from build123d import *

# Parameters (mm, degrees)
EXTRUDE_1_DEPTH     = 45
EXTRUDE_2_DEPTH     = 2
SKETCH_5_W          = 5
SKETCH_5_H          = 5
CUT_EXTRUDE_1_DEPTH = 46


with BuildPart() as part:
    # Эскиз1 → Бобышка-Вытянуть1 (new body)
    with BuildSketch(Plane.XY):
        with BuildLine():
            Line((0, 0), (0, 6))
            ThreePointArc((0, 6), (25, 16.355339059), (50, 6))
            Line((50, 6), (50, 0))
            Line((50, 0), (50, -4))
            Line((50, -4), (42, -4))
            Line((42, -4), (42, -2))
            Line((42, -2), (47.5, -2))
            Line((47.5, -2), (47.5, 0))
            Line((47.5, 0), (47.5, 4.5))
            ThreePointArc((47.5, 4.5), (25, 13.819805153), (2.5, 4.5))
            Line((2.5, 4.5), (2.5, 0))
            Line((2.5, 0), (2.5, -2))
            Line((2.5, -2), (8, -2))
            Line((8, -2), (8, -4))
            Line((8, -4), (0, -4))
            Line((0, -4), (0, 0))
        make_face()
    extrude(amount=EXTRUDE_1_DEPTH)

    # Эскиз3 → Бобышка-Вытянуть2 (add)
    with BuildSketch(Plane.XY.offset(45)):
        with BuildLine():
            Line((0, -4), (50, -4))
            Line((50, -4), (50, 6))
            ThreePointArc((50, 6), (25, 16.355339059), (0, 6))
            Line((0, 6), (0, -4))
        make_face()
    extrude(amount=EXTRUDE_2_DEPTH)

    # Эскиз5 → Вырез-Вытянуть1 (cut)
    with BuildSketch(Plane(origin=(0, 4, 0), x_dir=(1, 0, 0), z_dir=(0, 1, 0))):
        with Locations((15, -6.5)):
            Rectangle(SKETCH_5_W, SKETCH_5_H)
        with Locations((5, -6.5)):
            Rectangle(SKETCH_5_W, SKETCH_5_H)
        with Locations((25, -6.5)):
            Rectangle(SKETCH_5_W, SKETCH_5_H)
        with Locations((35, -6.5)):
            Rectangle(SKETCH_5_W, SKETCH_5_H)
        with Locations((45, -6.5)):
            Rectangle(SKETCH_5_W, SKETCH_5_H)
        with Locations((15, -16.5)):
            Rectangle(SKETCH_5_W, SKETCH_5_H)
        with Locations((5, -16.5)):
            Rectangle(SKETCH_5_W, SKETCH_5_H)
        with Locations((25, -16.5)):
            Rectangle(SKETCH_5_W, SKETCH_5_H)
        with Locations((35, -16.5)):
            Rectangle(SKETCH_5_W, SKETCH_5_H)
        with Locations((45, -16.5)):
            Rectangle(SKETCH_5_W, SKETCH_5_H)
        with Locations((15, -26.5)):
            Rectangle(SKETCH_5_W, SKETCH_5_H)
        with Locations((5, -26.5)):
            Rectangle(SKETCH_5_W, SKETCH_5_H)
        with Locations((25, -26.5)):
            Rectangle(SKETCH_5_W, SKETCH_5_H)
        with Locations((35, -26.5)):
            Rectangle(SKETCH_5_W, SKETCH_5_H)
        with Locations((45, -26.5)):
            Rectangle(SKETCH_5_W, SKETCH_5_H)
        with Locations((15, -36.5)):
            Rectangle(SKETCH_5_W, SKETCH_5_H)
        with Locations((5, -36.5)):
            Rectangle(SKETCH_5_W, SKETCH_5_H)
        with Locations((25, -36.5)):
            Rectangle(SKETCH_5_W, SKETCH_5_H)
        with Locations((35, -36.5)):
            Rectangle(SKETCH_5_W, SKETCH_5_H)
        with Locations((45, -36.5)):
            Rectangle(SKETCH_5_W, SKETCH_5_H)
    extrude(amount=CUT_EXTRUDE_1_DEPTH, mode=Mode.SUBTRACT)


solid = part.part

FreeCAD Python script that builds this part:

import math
import FreeCAD as App
import Part
import Sketcher

doc = App.newDocument("Part")
body = doc.addObject("PartDesign::Body", "Body")

# Sketch on XY plane
sketch1 = doc.addObject("Sketcher::SketchObject", "Sketch")
body.addObject(sketch1)
sketch1.AttachmentSupport = (doc.XY_Plane, [""])
sketch1.MapMode = "FlatFace"
sketch1.addGeometry(Part.ArcOfCircle(Part.Circle(App.Vector(25, -19, 0), App.Vector(0, 0, 1), 35.355339), math.radians(45), math.radians(135)), False)
sketch1.addGeometry(Part.LineSegment(App.Vector(0, 6, 0), App.Vector(0, -4, 0)), False)
sketch1.addGeometry(Part.LineSegment(App.Vector(0, -4, 0), App.Vector(8, -4, 0)), False)
sketch1.addGeometry(Part.LineSegment(App.Vector(8, -4, 0), App.Vector(8, -2, 0)), False)
sketch1.addGeometry(Part.LineSegment(App.Vector(8, -2, 0), App.Vector(2.5, -2, 0)), False)
sketch1.addGeometry(Part.LineSegment(App.Vector(2.5, -2, 0), App.Vector(2.5, 4.5, 0)), False)
sketch1.addGeometry(Part.ArcOfCircle(Part.Circle(App.Vector(25, -18, 0), App.Vector(0, 0, 1), 31.819805), math.radians(45), math.radians(135)), False)
sketch1.addGeometry(Part.LineSegment(App.Vector(47.5, 4.5, 0), App.Vector(47.5, -2, 0)), False)
sketch1.addGeometry(Part.LineSegment(App.Vector(47.5, -2, 0), App.Vector(42, -2, 0)), False)
sketch1.addGeometry(Part.LineSegment(App.Vector(42, -2, 0), App.Vector(42, -4, 0)), False)
sketch1.addGeometry(Part.LineSegment(App.Vector(42, -4, 0), App.Vector(50, -4, 0)), False)
sketch1.addGeometry(Part.LineSegment(App.Vector(50, -4, 0), App.Vector(50, 6, 0)), False)
sketch1.addConstraint(Sketcher.Constraint("Coincident", 0, 2, 1, 1))
sketch1.addConstraint(Sketcher.Constraint("Coincident", 1, 2, 2, 1))
sketch1.addConstraint(Sketcher.Constraint("Coincident", 2, 2, 3, 1))
sketch1.addConstraint(Sketcher.Constraint("Coincident", 3, 2, 4, 1))
sketch1.addConstraint(Sketcher.Constraint("Coincident", 4, 2, 5, 1))
sketch1.addConstraint(Sketcher.Constraint("Coincident", 5, 2, 6, 2))
sketch1.addConstraint(Sketcher.Constraint("Coincident", 6, 1, 7, 1))
sketch1.addConstraint(Sketcher.Constraint("Coincident", 7, 2, 8, 1))
sketch1.addConstraint(Sketcher.Constraint("Coincident", 8, 2, 9, 1))
sketch1.addConstraint(Sketcher.Constraint("Coincident", 9, 2, 10, 1))
sketch1.addConstraint(Sketcher.Constraint("Coincident", 10, 2, 11, 1))
sketch1.addConstraint(Sketcher.Constraint("Coincident", 11, 2, 0, 1))
sketch1.addConstraint(Sketcher.Constraint("Vertical", 1))
sketch1.addConstraint(Sketcher.Constraint("Horizontal", 2))
sketch1.addConstraint(Sketcher.Constraint("Vertical", 3))
sketch1.addConstraint(Sketcher.Constraint("Horizontal", 4))
sketch1.addConstraint(Sketcher.Constraint("Vertical", 5))
sketch1.addConstraint(Sketcher.Constraint("Vertical", 7))
sketch1.addConstraint(Sketcher.Constraint("Horizontal", 8))
sketch1.addConstraint(Sketcher.Constraint("Vertical", 9))
sketch1.addConstraint(Sketcher.Constraint("Horizontal", 10))
sketch1.addConstraint(Sketcher.Constraint("Vertical", 11))
sketch1.addConstraint(Sketcher.Constraint("PointOnObject", 0, 2, -2))
sketch1.addConstraint(Sketcher.Constraint("Horizontal", 5, 2, 6, 1))
sketch1.addConstraint(Sketcher.Constraint("Horizontal", 4, 2, 7, 2))
sketch1.addConstraint(Sketcher.Constraint("Horizontal", 2, 2, 9, 2))
sketch1.addConstraint(Sketcher.Constraint("Horizontal", 0, 2, 11, 2))
sketch1.addConstraint(Sketcher.Constraint("Vertical", 0, 3, 6, 3))
sketch1.addConstraint(Sketcher.Constraint("Equal", 4, 8))
sketch1.addConstraint(Sketcher.Constraint("DistanceX", 2, 1, 2, 2, 8.0))
sketch1.addConstraint(Sketcher.Constraint("DistanceY", 1, 2, 1, 1, 10.0))
sketch1.addConstraint(Sketcher.Constraint("DistanceY", 3, 1, 3, 2, 2.0))
sketch1.addConstraint(Sketcher.Constraint("DistanceX", 4, 2, 4, 1, 5.5))
sketch1.addConstraint(Sketcher.Constraint("DistanceY", 5, 1, 5, 2, 6.5))
sketch1.addConstraint(Sketcher.Constraint("DistanceX", -1, 1, 0, 3, 25.0))
sketch1.addConstraint(Sketcher.Constraint("DistanceY", 0, 3, -1, 1, 19.0))
sketch1.addConstraint(Sketcher.Constraint("DistanceY", 6, 3, -1, 1, 18.0))
sketch1.addConstraint(Sketcher.Constraint("DistanceY", -1, 1, 0, 2, 6.0))
pad1 = doc.addObject("PartDesign::Pad", "Pad")
body.addObject(pad1)
pad1.Profile = sketch1
pad1.Length = 45

# Sketch on XY plane
sketch2 = doc.addObject("Sketcher::SketchObject", "Sketch001")
body.addObject(sketch2)
sketch2.AttachmentSupport = (doc.XY_Plane, [""])
sketch2.MapMode = "FlatFace"
sketch2.AttachmentOffset = App.Placement(App.Vector(0, 0, 45), App.Rotation())
sketch2.addGeometry(Part.LineSegment(App.Vector(0, -4, 0), App.Vector(50, -4, 0)), False)
sketch2.addGeometry(Part.LineSegment(App.Vector(50, -4, 0), App.Vector(50, 6, 0)), False)
sketch2.addGeometry(Part.ArcOfCircle(Part.Circle(App.Vector(25, -19, 0), App.Vector(0, 0, 1), 35.355339), math.radians(45), math.radians(135)), False)
sketch2.addGeometry(Part.LineSegment(App.Vector(0, 6, 0), App.Vector(0, -4, 0)), False)
sketch2.addConstraint(Sketcher.Constraint("Coincident", 0, 2, 1, 1))
sketch2.addConstraint(Sketcher.Constraint("Coincident", 1, 2, 2, 1))
sketch2.addConstraint(Sketcher.Constraint("Coincident", 2, 2, 3, 1))
sketch2.addConstraint(Sketcher.Constraint("Coincident", 3, 2, 0, 1))
sketch2.addConstraint(Sketcher.Constraint("Horizontal", 0))
sketch2.addConstraint(Sketcher.Constraint("Vertical", 1))
sketch2.addConstraint(Sketcher.Constraint("Vertical", 3))
sketch2.addConstraint(Sketcher.Constraint("PointOnObject", 2, 2, -2))
sketch2.addConstraint(Sketcher.Constraint("Horizontal", 1, 2, 2, 2))
sketch2.addConstraint(Sketcher.Constraint("DistanceX", 0, 1, 0, 2, 50.0))
sketch2.addConstraint(Sketcher.Constraint("DistanceY", 1, 1, 1, 2, 10.0))
sketch2.addConstraint(Sketcher.Constraint("DistanceY", 2, 3, -1, 1, 19.0))
sketch2.addConstraint(Sketcher.Constraint("DistanceY", 0, 2, -1, 1, 4.0))
pad2 = doc.addObject("PartDesign::Pad", "Pad001")
body.addObject(pad2)
pad2.Profile = sketch2
pad2.Length = 2

# Sketch on XZ plane
sketch3 = doc.addObject("Sketcher::SketchObject", "Sketch002")
body.addObject(sketch3)
sketch3.AttachmentSupport = (doc.XZ_Plane, [""])
sketch3.MapMode = "FlatFace"
sketch3.AttachmentOffset = App.Placement(App.Vector(0, 0, -4), App.Rotation())
sketch3.addGeometry(Part.LineSegment(App.Vector(12.5, 4, 0), App.Vector(12.5, 9, 0)), False)
sketch3.addGeometry(Part.LineSegment(App.Vector(12.5, 9, 0), App.Vector(17.5, 9, 0)), False)
sketch3.addGeometry(Part.LineSegment(App.Vector(17.5, 9, 0), App.Vector(17.5, 4, 0)), False)
sketch3.addGeometry(Part.LineSegment(App.Vector(17.5, 4, 0), App.Vector(12.5, 4, 0)), False)
sketch3.addGeometry(Part.LineSegment(App.Vector(2.5, 4, 0), App.Vector(2.5, 9, 0)), False)
sketch3.addGeometry(Part.LineSegment(App.Vector(2.5, 9, 0), App.Vector(7.5, 9, 0)), False)
sketch3.addGeometry(Part.LineSegment(App.Vector(7.5, 9, 0), App.Vector(7.5, 4, 0)), False)
sketch3.addGeometry(Part.LineSegment(App.Vector(7.5, 4, 0), App.Vector(2.5, 4, 0)), False)
sketch3.addGeometry(Part.LineSegment(App.Vector(22.5, 4, 0), App.Vector(22.5, 9, 0)), False)
sketch3.addGeometry(Part.LineSegment(App.Vector(22.5, 9, 0), App.Vector(27.5, 9, 0)), False)
sketch3.addGeometry(Part.LineSegment(App.Vector(27.5, 9, 0), App.Vector(27.5, 4, 0)), False)
sketch3.addGeometry(Part.LineSegment(App.Vector(27.5, 4, 0), App.Vector(22.5, 4, 0)), False)
sketch3.addGeometry(Part.LineSegment(App.Vector(32.5, 4, 0), App.Vector(32.5, 9, 0)), False)
sketch3.addGeometry(Part.LineSegment(App.Vector(32.5, 9, 0), App.Vector(37.5, 9, 0)), False)
sketch3.addGeometry(Part.LineSegment(App.Vector(37.5, 9, 0), App.Vector(37.5, 4, 0)), False)
sketch3.addGeometry(Part.LineSegment(App.Vector(37.5, 4, 0), App.Vector(32.5, 4, 0)), False)
sketch3.addGeometry(Part.LineSegment(App.Vector(42.5, 4, 0), App.Vector(42.5, 9, 0)), False)
sketch3.addGeometry(Part.LineSegment(App.Vector(42.5, 9, 0), App.Vector(47.5, 9, 0)), False)
sketch3.addGeometry(Part.LineSegment(App.Vector(47.5, 9, 0), App.Vector(47.5, 4, 0)), False)
sketch3.addGeometry(Part.LineSegment(App.Vector(47.5, 4, 0), App.Vector(42.5, 4, 0)), False)
sketch3.addGeometry(Part.LineSegment(App.Vector(12.5, 14, 0), App.Vector(12.5, 19, 0)), False)
sketch3.addGeometry(Part.LineSegment(App.Vector(12.5, 19, 0), App.Vector(17.5, 19, 0)), False)
sketch3.addGeometry(Part.LineSegment(App.Vector(17.5, 19, 0), App.Vector(17.5, 14, 0)), False)
sketch3.addGeometry(Part.LineSegment(App.Vector(17.5, 14, 0), App.Vector(12.5, 14, 0)), False)
sketch3.addGeometry(Part.LineSegment(App.Vector(2.5, 14, 0), App.Vector(2.5, 19, 0)), False)
sketch3.addGeometry(Part.LineSegment(App.Vector(2.5, 19, 0), App.Vector(7.5, 19, 0)), False)
sketch3.addGeometry(Part.LineSegment(App.Vector(7.5, 19, 0), App.Vector(7.5, 14, 0)), False)
sketch3.addGeometry(Part.LineSegment(App.Vector(7.5, 14, 0), App.Vector(2.5, 14, 0)), False)
sketch3.addGeometry(Part.LineSegment(App.Vector(22.5, 14, 0), App.Vector(22.5, 19, 0)), False)
sketch3.addGeometry(Part.LineSegment(App.Vector(22.5, 19, 0), App.Vector(27.5, 19, 0)), False)
sketch3.addGeometry(Part.LineSegment(App.Vector(27.5, 19, 0), App.Vector(27.5, 14, 0)), False)
sketch3.addGeometry(Part.LineSegment(App.Vector(27.5, 14, 0), App.Vector(22.5, 14, 0)), False)
sketch3.addGeometry(Part.LineSegment(App.Vector(32.5, 14, 0), App.Vector(32.5, 19, 0)), False)
sketch3.addGeometry(Part.LineSegment(App.Vector(32.5, 19, 0), App.Vector(37.5, 19, 0)), False)
sketch3.addGeometry(Part.LineSegment(App.Vector(37.5, 19, 0), App.Vector(37.5, 14, 0)), False)
sketch3.addGeometry(Part.LineSegment(App.Vector(37.5, 14, 0), App.Vector(32.5, 14, 0)), False)
sketch3.addGeometry(Part.LineSegment(App.Vector(42.5, 14, 0), App.Vector(42.5, 19, 0)), False)
sketch3.addGeometry(Part.LineSegment(App.Vector(42.5, 19, 0), App.Vector(47.5, 19, 0)), False)
sketch3.addGeometry(Part.LineSegment(App.Vector(47.5, 19, 0), App.Vector(47.5, 14, 0)), False)
sketch3.addGeometry(Part.LineSegment(App.Vector(47.5, 14, 0), App.Vector(42.5, 14, 0)), False)
sketch3.addGeometry(Part.LineSegment(App.Vector(12.5, 24, 0), App.Vector(12.5, 29, 0)), False)
sketch3.addGeometry(Part.LineSegment(App.Vector(12.5, 29, 0), App.Vector(17.5, 29, 0)), False)
sketch3.addGeometry(Part.LineSegment(App.Vector(17.5, 29, 0), App.Vector(17.5, 24, 0)), False)
sketch3.addGeometry(Part.LineSegment(App.Vector(17.5, 24, 0), App.Vector(12.5, 24, 0)), False)
sketch3.addGeometry(Part.LineSegment(App.Vector(2.5, 24, 0), App.Vector(2.5, 29, 0)), False)
sketch3.addGeometry(Part.LineSegment(App.Vector(2.5, 29, 0), App.Vector(7.5, 29, 0)), False)
sketch3.addGeometry(Part.LineSegment(App.Vector(7.5, 29, 0), App.Vector(7.5, 24, 0)), False)
sketch3.addGeometry(Part.LineSegment(App.Vector(7.5, 24, 0), App.Vector(2.5, 24, 0)), False)
sketch3.addGeometry(Part.LineSegment(App.Vector(22.5, 24, 0), App.Vector(22.5, 29, 0)), False)
sketch3.addGeometry(Part.LineSegment(App.Vector(22.5, 29, 0), App.Vector(27.5, 29, 0)), False)
sketch3.addGeometry(Part.LineSegment(App.Vector(27.5, 29, 0), App.Vector(27.5, 24, 0)), False)
sketch3.addGeometry(Part.LineSegment(App.Vector(27.5, 24, 0), App.Vector(22.5, 24, 0)), False)
sketch3.addGeometry(Part.LineSegment(App.Vector(32.5, 24, 0), App.Vector(32.5, 29, 0)), False)
sketch3.addGeometry(Part.LineSegment(App.Vector(32.5, 29, 0), App.Vector(37.5, 29, 0)), False)
sketch3.addGeometry(Part.LineSegment(App.Vector(37.5, 29, 0), App.Vector(37.5, 24, 0)), False)
sketch3.addGeometry(Part.LineSegment(App.Vector(37.5, 24, 0), App.Vector(32.5, 24, 0)), False)
sketch3.addGeometry(Part.LineSegment(App.Vector(42.5, 24, 0), App.Vector(42.5, 29, 0)), False)
sketch3.addGeometry(Part.LineSegment(App.Vector(42.5, 29, 0), App.Vector(47.5, 29, 0)), False)
sketch3.addGeometry(Part.LineSegment(App.Vector(47.5, 29, 0), App.Vector(47.5, 24, 0)), False)
sketch3.addGeometry(Part.LineSegment(App.Vector(47.5, 24, 0), App.Vector(42.5, 24, 0)), False)
sketch3.addGeometry(Part.LineSegment(App.Vector(12.5, 34, 0), App.Vector(12.5, 39, 0)), False)
sketch3.addGeometry(Part.LineSegment(App.Vector(12.5, 39, 0), App.Vector(17.5, 39, 0)), False)
sketch3.addGeometry(Part.LineSegment(App.Vector(17.5, 39, 0), App.Vector(17.5, 34, 0)), False)
sketch3.addGeometry(Part.LineSegment(App.Vector(17.5, 34, 0), App.Vector(12.5, 34, 0)), False)
sketch3.addGeometry(Part.LineSegment(App.Vector(2.5, 34, 0), App.Vector(2.5, 39, 0)), False)
sketch3.addGeometry(Part.LineSegment(App.Vector(2.5, 39, 0), App.Vector(7.5, 39, 0)), False)
sketch3.addGeometry(Part.LineSegment(App.Vector(7.5, 39, 0), App.Vector(7.5, 34, 0)), False)
sketch3.addGeometry(Part.LineSegment(App.Vector(7.5, 34, 0), App.Vector(2.5, 34, 0)), False)
sketch3.addGeometry(Part.LineSegment(App.Vector(22.5, 34, 0), App.Vector(22.5, 39, 0)), False)
sketch3.addGeometry(Part.LineSegment(App.Vector(22.5, 39, 0), App.Vector(27.5, 39, 0)), False)
sketch3.addGeometry(Part.LineSegment(App.Vector(27.5, 39, 0), App.Vector(27.5, 34, 0)), False)
sketch3.addGeometry(Part.LineSegment(App.Vector(27.5, 34, 0), App.Vector(22.5, 34, 0)), False)
sketch3.addGeometry(Part.LineSegment(App.Vector(32.5, 34, 0), App.Vector(32.5, 39, 0)), False)
sketch3.addGeometry(Part.LineSegment(App.Vector(32.5, 39, 0), App.Vector(37.5, 39, 0)), False)
sketch3.addGeometry(Part.LineSegment(App.Vector(37.5, 39, 0), App.Vector(37.5, 34, 0)), False)
sketch3.addGeometry(Part.LineSegment(App.Vector(37.5, 34, 0), App.Vector(32.5, 34, 0)), False)
sketch3.addGeometry(Part.LineSegment(App.Vector(42.5, 34, 0), App.Vector(42.5, 39, 0)), False)
sketch3.addGeometry(Part.LineSegment(App.Vector(42.5, 39, 0), App.Vector(47.5, 39, 0)), False)
sketch3.addGeometry(Part.LineSegment(App.Vector(47.5, 39, 0), App.Vector(47.5, 34, 0)), False)
sketch3.addGeometry(Part.LineSegment(App.Vector(47.5, 34, 0), App.Vector(42.5, 34, 0)), False)
sketch3.addConstraint(Sketcher.Constraint("Coincident", 0, 2, 1, 1))
sketch3.addConstraint(Sketcher.Constraint("Coincident", 1, 2, 2, 1))
sketch3.addConstraint(Sketcher.Constraint("Coincident", 2, 2, 3, 1))
sketch3.addConstraint(Sketcher.Constraint("Coincident", 3, 2, 0, 1))
sketch3.addConstraint(Sketcher.Constraint("Coincident", 4, 2, 5, 1))
sketch3.addConstraint(Sketcher.Constraint("Coincident", 5, 2, 6, 1))
sketch3.addConstraint(Sketcher.Constraint("Coincident", 6, 2, 7, 1))
sketch3.addConstraint(Sketcher.Constraint("Coincident", 7, 2, 4, 1))
sketch3.addConstraint(Sketcher.Constraint("Coincident", 8, 2, 9, 1))
sketch3.addConstraint(Sketcher.Constraint("Coincident", 9, 2, 10, 1))
sketch3.addConstraint(Sketcher.Constraint("Coincident", 10, 2, 11, 1))
sketch3.addConstraint(Sketcher.Constraint("Coincident", 11, 2, 8, 1))
sketch3.addConstraint(Sketcher.Constraint("Coincident", 12, 2, 13, 1))
sketch3.addConstraint(Sketcher.Constraint("Coincident", 13, 2, 14, 1))
sketch3.addConstraint(Sketcher.Constraint("Coincident", 14, 2, 15, 1))
sketch3.addConstraint(Sketcher.Constraint("Coincident", 15, 2, 12, 1))
sketch3.addConstraint(Sketcher.Constraint("Coincident", 16, 2, 17, 1))
sketch3.addConstraint(Sketcher.Constraint("Coincident", 17, 2, 18, 1))
sketch3.addConstraint(Sketcher.Constraint("Coincident", 18, 2, 19, 1))
sketch3.addConstraint(Sketcher.Constraint("Coincident", 19, 2, 16, 1))
sketch3.addConstraint(Sketcher.Constraint("Coincident", 20, 2, 21, 1))
sketch3.addConstraint(Sketcher.Constraint("Coincident", 21, 2, 22, 1))
sketch3.addConstraint(Sketcher.Constraint("Coincident", 22, 2, 23, 1))
sketch3.addConstraint(Sketcher.Constraint("Coincident", 23, 2, 20, 1))
sketch3.addConstraint(Sketcher.Constraint("Coincident", 24, 2, 25, 1))
sketch3.addConstraint(Sketcher.Constraint("Coincident", 25, 2, 26, 1))
sketch3.addConstraint(Sketcher.Constraint("Coincident", 26, 2, 27, 1))
sketch3.addConstraint(Sketcher.Constraint("Coincident", 27, 2, 24, 1))
sketch3.addConstraint(Sketcher.Constraint("Coincident", 28, 2, 29, 1))
sketch3.addConstraint(Sketcher.Constraint("Coincident", 29, 2, 30, 1))
sketch3.addConstraint(Sketcher.Constraint("Coincident", 30, 2, 31, 1))
sketch3.addConstraint(Sketcher.Constraint("Coincident", 31, 2, 28, 1))
sketch3.addConstraint(Sketcher.Constraint("Coincident", 32, 2, 33, 1))
sketch3.addConstraint(Sketcher.Constraint("Coincident", 33, 2, 34, 1))
sketch3.addConstraint(Sketcher.Constraint("Coincident", 34, 2, 35, 1))
sketch3.addConstraint(Sketcher.Constraint("Coincident", 35, 2, 32, 1))
sketch3.addConstraint(Sketcher.Constraint("Coincident", 36, 2, 37, 1))
sketch3.addConstraint(Sketcher.Constraint("Coincident", 37, 2, 38, 1))
sketch3.addConstraint(Sketcher.Constraint("Coincident", 38, 2, 39, 1))
sketch3.addConstraint(Sketcher.Constraint("Coincident", 39, 2, 36, 1))
sketch3.addConstraint(Sketcher.Constraint("Coincident", 40, 2, 41, 1))
sketch3.addConstraint(Sketcher.Constraint("Coincident", 41, 2, 42, 1))
sketch3.addConstraint(Sketcher.Constraint("Coincident", 42, 2, 43, 1))
sketch3.addConstraint(Sketcher.Constraint("Coincident", 43, 2, 40, 1))
sketch3.addConstraint(Sketcher.Constraint("Coincident", 44, 2, 45, 1))
sketch3.addConstraint(Sketcher.Constraint("Coincident", 45, 2, 46, 1))
sketch3.addConstraint(Sketcher.Constraint("Coincident", 46, 2, 47, 1))
sketch3.addConstraint(Sketcher.Constraint("Coincident", 47, 2, 44, 1))
sketch3.addConstraint(Sketcher.Constraint("Coincident", 48, 2, 49, 1))
sketch3.addConstraint(Sketcher.Constraint("Coincident", 49, 2, 50, 1))
sketch3.addConstraint(Sketcher.Constraint("Coincident", 50, 2, 51, 1))
sketch3.addConstraint(Sketcher.Constraint("Coincident", 51, 2, 48, 1))
sketch3.addConstraint(Sketcher.Constraint("Coincident", 52, 2, 53, 1))
sketch3.addConstraint(Sketcher.Constraint("Coincident", 53, 2, 54, 1))
sketch3.addConstraint(Sketcher.Constraint("Coincident", 54, 2, 55, 1))
sketch3.addConstraint(Sketcher.Constraint("Coincident", 55, 2, 52, 1))
sketch3.addConstraint(Sketcher.Constraint("Coincident", 56, 2, 57, 1))
sketch3.addConstraint(Sketcher.Constraint("Coincident", 57, 2, 58, 1))
sketch3.addConstraint(Sketcher.Constraint("Coincident", 58, 2, 59, 1))
sketch3.addConstraint(Sketcher.Constraint("Coincident", 59, 2, 56, 1))
sketch3.addConstraint(Sketcher.Constraint("Coincident", 60, 2, 61, 1))
sketch3.addConstraint(Sketcher.Constraint("Coincident", 61, 2, 62, 1))
sketch3.addConstraint(Sketcher.Constraint("Coincident", 62, 2, 63, 1))
sketch3.addConstraint(Sketcher.Constraint("Coincident", 63, 2, 60, 1))
sketch3.addConstraint(Sketcher.Constraint("Coincident", 64, 2, 65, 1))
sketch3.addConstraint(Sketcher.Constraint("Coincident", 65, 2, 66, 1))
sketch3.addConstraint(Sketcher.Constraint("Coincident", 66, 2, 67, 1))
sketch3.addConstraint(Sketcher.Constraint("Coincident", 67, 2, 64, 1))
sketch3.addConstraint(Sketcher.Constraint("Coincident", 68, 2, 69, 1))
sketch3.addConstraint(Sketcher.Constraint("Coincident", 69, 2, 70, 1))
sketch3.addConstraint(Sketcher.Constraint("Coincident", 70, 2, 71, 1))
sketch3.addConstraint(Sketcher.Constraint("Coincident", 71, 2, 68, 1))
sketch3.addConstraint(Sketcher.Constraint("Coincident", 72, 2, 73, 1))
sketch3.addConstraint(Sketcher.Constraint("Coincident", 73, 2, 74, 1))
sketch3.addConstraint(Sketcher.Constraint("Coincident", 74, 2, 75, 1))
sketch3.addConstraint(Sketcher.Constraint("Coincident", 75, 2, 72, 1))
sketch3.addConstraint(Sketcher.Constraint("Coincident", 76, 2, 77, 1))
sketch3.addConstraint(Sketcher.Constraint("Coincident", 77, 2, 78, 1))
sketch3.addConstraint(Sketcher.Constraint("Coincident", 78, 2, 79, 1))
sketch3.addConstraint(Sketcher.Constraint("Coincident", 79, 2, 76, 1))
sketch3.addConstraint(Sketcher.Constraint("Vertical", 0))
sketch3.addConstraint(Sketcher.Constraint("Horizontal", 1))
sketch3.addConstraint(Sketcher.Constraint("Vertical", 2))
sketch3.addConstraint(Sketcher.Constraint("Horizontal", 3))
sketch3.addConstraint(Sketcher.Constraint("Vertical", 4))
sketch3.addConstraint(Sketcher.Constraint("Horizontal", 5))
sketch3.addConstraint(Sketcher.Constraint("Vertical", 6))
sketch3.addConstraint(Sketcher.Constraint("Horizontal", 7))
sketch3.addConstraint(Sketcher.Constraint("Vertical", 8))
sketch3.addConstraint(Sketcher.Constraint("Horizontal", 9))
sketch3.addConstraint(Sketcher.Constraint("Vertical", 10))
sketch3.addConstraint(Sketcher.Constraint("Horizontal", 11))
sketch3.addConstraint(Sketcher.Constraint("Vertical", 12))
sketch3.addConstraint(Sketcher.Constraint("Horizontal", 13))
sketch3.addConstraint(Sketcher.Constraint("Vertical", 14))
sketch3.addConstraint(Sketcher.Constraint("Horizontal", 15))
sketch3.addConstraint(Sketcher.Constraint("Vertical", 16))
sketch3.addConstraint(Sketcher.Constraint("Horizontal", 17))
sketch3.addConstraint(Sketcher.Constraint("Vertical", 18))
sketch3.addConstraint(Sketcher.Constraint("Horizontal", 19))
sketch3.addConstraint(Sketcher.Constraint("Vertical", 20))
sketch3.addConstraint(Sketcher.Constraint("Horizontal", 21))
sketch3.addConstraint(Sketcher.Constraint("Vertical", 22))
sketch3.addConstraint(Sketcher.Constraint("Horizontal", 23))
sketch3.addConstraint(Sketcher.Constraint("Vertical", 24))
sketch3.addConstraint(Sketcher.Constraint("Horizontal", 25))
sketch3.addConstraint(Sketcher.Constraint("Vertical", 26))
sketch3.addConstraint(Sketcher.Constraint("Horizontal", 27))
sketch3.addConstraint(Sketcher.Constraint("Vertical", 28))
sketch3.addConstraint(Sketcher.Constraint("Horizontal", 29))
sketch3.addConstraint(Sketcher.Constraint("Vertical", 30))
sketch3.addConstraint(Sketcher.Constraint("Horizontal", 31))
sketch3.addConstraint(Sketcher.Constraint("Vertical", 32))
sketch3.addConstraint(Sketcher.Constraint("Horizontal", 33))
sketch3.addConstraint(Sketcher.Constraint("Vertical", 34))
sketch3.addConstraint(Sketcher.Constraint("Horizontal", 35))
sketch3.addConstraint(Sketcher.Constraint("Vertical", 36))
sketch3.addConstraint(Sketcher.Constraint("Horizontal", 37))
sketch3.addConstraint(Sketcher.Constraint("Vertical", 38))
sketch3.addConstraint(Sketcher.Constraint("Horizontal", 39))
sketch3.addConstraint(Sketcher.Constraint("Vertical", 40))
sketch3.addConstraint(Sketcher.Constraint("Horizontal", 41))
sketch3.addConstraint(Sketcher.Constraint("Vertical", 42))
sketch3.addConstraint(Sketcher.Constraint("Horizontal", 43))
sketch3.addConstraint(Sketcher.Constraint("Vertical", 44))
sketch3.addConstraint(Sketcher.Constraint("Horizontal", 45))
sketch3.addConstraint(Sketcher.Constraint("Vertical", 46))
sketch3.addConstraint(Sketcher.Constraint("Horizontal", 47))
sketch3.addConstraint(Sketcher.Constraint("Vertical", 48))
sketch3.addConstraint(Sketcher.Constraint("Horizontal", 49))
sketch3.addConstraint(Sketcher.Constraint("Vertical", 50))
sketch3.addConstraint(Sketcher.Constraint("Horizontal", 51))
sketch3.addConstraint(Sketcher.Constraint("Vertical", 52))
sketch3.addConstraint(Sketcher.Constraint("Horizontal", 53))
sketch3.addConstraint(Sketcher.Constraint("Vertical", 54))
sketch3.addConstraint(Sketcher.Constraint("Horizontal", 55))
sketch3.addConstraint(Sketcher.Constraint("Vertical", 56))
sketch3.addConstraint(Sketcher.Constraint("Horizontal", 57))
sketch3.addConstraint(Sketcher.Constraint("Vertical", 58))
sketch3.addConstraint(Sketcher.Constraint("Horizontal", 59))
sketch3.addConstraint(Sketcher.Constraint("Vertical", 60))
sketch3.addConstraint(Sketcher.Constraint("Horizontal", 61))
sketch3.addConstraint(Sketcher.Constraint("Vertical", 62))
sketch3.addConstraint(Sketcher.Constraint("Horizontal", 63))
sketch3.addConstraint(Sketcher.Constraint("Vertical", 64))
sketch3.addConstraint(Sketcher.Constraint("Horizontal", 65))
sketch3.addConstraint(Sketcher.Constraint("Vertical", 66))
sketch3.addConstraint(Sketcher.Constraint("Horizontal", 67))
sketch3.addConstraint(Sketcher.Constraint("Vertical", 68))
sketch3.addConstraint(Sketcher.Constraint("Horizontal", 69))
sketch3.addConstraint(Sketcher.Constraint("Vertical", 70))
sketch3.addConstraint(Sketcher.Constraint("Horizontal", 71))
sketch3.addConstraint(Sketcher.Constraint("Vertical", 72))
sketch3.addConstraint(Sketcher.Constraint("Horizontal", 73))
sketch3.addConstraint(Sketcher.Constraint("Vertical", 74))
sketch3.addConstraint(Sketcher.Constraint("Horizontal", 75))
sketch3.addConstraint(Sketcher.Constraint("Vertical", 76))
sketch3.addConstraint(Sketcher.Constraint("Horizontal", 77))
sketch3.addConstraint(Sketcher.Constraint("Vertical", 78))
sketch3.addConstraint(Sketcher.Constraint("Horizontal", 79))
sketch3.addConstraint(Sketcher.Constraint("Horizontal", 1, 2, 4, 2))
sketch3.addConstraint(Sketcher.Constraint("Horizontal", 3, 2, 6, 2))
sketch3.addConstraint(Sketcher.Constraint("Horizontal", 5, 2, 8, 2))
sketch3.addConstraint(Sketcher.Constraint("Horizontal", 7, 2, 10, 2))
sketch3.addConstraint(Sketcher.Constraint("Horizontal", 9, 2, 12, 2))
sketch3.addConstraint(Sketcher.Constraint("Horizontal", 11, 2, 14, 2))
sketch3.addConstraint(Sketcher.Constraint("Horizontal", 13, 2, 16, 2))
sketch3.addConstraint(Sketcher.Constraint("Horizontal", 15, 2, 18, 2))
sketch3.addConstraint(Sketcher.Constraint("Horizontal", 21, 2, 24, 2))
sketch3.addConstraint(Sketcher.Constraint("Horizontal", 23, 2, 26, 2))
sketch3.addConstraint(Sketcher.Constraint("Horizontal", 25, 2, 28, 2))
sketch3.addConstraint(Sketcher.Constraint("Horizontal", 27, 2, 30, 2))
sketch3.addConstraint(Sketcher.Constraint("Horizontal", 29, 2, 32, 2))
sketch3.addConstraint(Sketcher.Constraint("Horizontal", 31, 2, 34, 2))
sketch3.addConstraint(Sketcher.Constraint("Horizontal", 33, 2, 36, 2))
sketch3.addConstraint(Sketcher.Constraint("Horizontal", 35, 2, 38, 2))
sketch3.addConstraint(Sketcher.Constraint("Horizontal", 41, 2, 44, 2))
sketch3.addConstraint(Sketcher.Constraint("Horizontal", 43, 2, 46, 2))
sketch3.addConstraint(Sketcher.Constraint("Horizontal", 45, 2, 48, 2))
sketch3.addConstraint(Sketcher.Constraint("Horizontal", 47, 2, 50, 2))
sketch3.addConstraint(Sketcher.Constraint("Horizontal", 49, 2, 52, 2))
sketch3.addConstraint(Sketcher.Constraint("Horizontal", 51, 2, 54, 2))
sketch3.addConstraint(Sketcher.Constraint("Horizontal", 53, 2, 56, 2))
sketch3.addConstraint(Sketcher.Constraint("Horizontal", 55, 2, 58, 2))
sketch3.addConstraint(Sketcher.Constraint("Horizontal", 61, 2, 64, 2))
sketch3.addConstraint(Sketcher.Constraint("Horizontal", 63, 2, 66, 2))
sketch3.addConstraint(Sketcher.Constraint("Horizontal", 65, 2, 68, 2))
sketch3.addConstraint(Sketcher.Constraint("Horizontal", 67, 2, 70, 2))
sketch3.addConstraint(Sketcher.Constraint("Horizontal", 69, 2, 72, 2))
sketch3.addConstraint(Sketcher.Constraint("Horizontal", 71, 2, 74, 2))
sketch3.addConstraint(Sketcher.Constraint("Horizontal", 73, 2, 76, 2))
sketch3.addConstraint(Sketcher.Constraint("Horizontal", 75, 2, 78, 2))
sketch3.addConstraint(Sketcher.Constraint("Vertical", 3, 2, 20, 2))
sketch3.addConstraint(Sketcher.Constraint("Vertical", 2, 2, 21, 2))
sketch3.addConstraint(Sketcher.Constraint("Vertical", 7, 2, 24, 2))
sketch3.addConstraint(Sketcher.Constraint("Vertical", 6, 2, 25, 2))
sketch3.addConstraint(Sketcher.Constraint("Vertical", 11, 2, 28, 2))
sketch3.addConstraint(Sketcher.Constraint("Vertical", 10, 2, 29, 2))
sketch3.addConstraint(Sketcher.Constraint("Vertical", 15, 2, 32, 2))
sketch3.addConstraint(Sketcher.Constraint("Vertical", 14, 2, 33, 2))
sketch3.addConstraint(Sketcher.Constraint("Vertical", 19, 2, 36, 2))
sketch3.addConstraint(Sketcher.Constraint("Vertical", 18, 2, 37, 2))
sketch3.addConstraint(Sketcher.Constraint("Vertical", 23, 2, 40, 2))
sketch3.addConstraint(Sketcher.Constraint("Vertical", 22, 2, 41, 2))
sketch3.addConstraint(Sketcher.Constraint("Vertical", 27, 2, 44, 2))
sketch3.addConstraint(Sketcher.Constraint("Vertical", 26, 2, 45, 2))
sketch3.addConstraint(Sketcher.Constraint("Vertical", 31, 2, 48, 2))
sketch3.addConstraint(Sketcher.Constraint("Vertical", 30, 2, 49, 2))
sketch3.addConstraint(Sketcher.Constraint("Vertical", 35, 2, 52, 2))
sketch3.addConstraint(Sketcher.Constraint("Vertical", 34, 2, 53, 2))
sketch3.addConstraint(Sketcher.Constraint("Vertical", 39, 2, 56, 2))
sketch3.addConstraint(Sketcher.Constraint("Vertical", 38, 2, 57, 2))
sketch3.addConstraint(Sketcher.Constraint("Vertical", 43, 2, 60, 2))
sketch3.addConstraint(Sketcher.Constraint("Vertical", 42, 2, 61, 2))
sketch3.addConstraint(Sketcher.Constraint("Vertical", 47, 2, 64, 2))
sketch3.addConstraint(Sketcher.Constraint("Vertical", 46, 2, 65, 2))
sketch3.addConstraint(Sketcher.Constraint("Vertical", 51, 2, 68, 2))
sketch3.addConstraint(Sketcher.Constraint("Vertical", 50, 2, 69, 2))
sketch3.addConstraint(Sketcher.Constraint("Vertical", 55, 2, 72, 2))
sketch3.addConstraint(Sketcher.Constraint("Vertical", 54, 2, 73, 2))
sketch3.addConstraint(Sketcher.Constraint("Vertical", 59, 2, 76, 2))
sketch3.addConstraint(Sketcher.Constraint("Vertical", 58, 2, 77, 2))
sketch3.addConstraint(Sketcher.Constraint("Equal", 3, 5))
sketch3.addConstraint(Sketcher.Constraint("Equal", 7, 9))
sketch3.addConstraint(Sketcher.Constraint("Equal", 11, 13))
sketch3.addConstraint(Sketcher.Constraint("Equal", 15, 17))
sketch3.addConstraint(Sketcher.Constraint("Equal", 79, 0))
sketch3.addConstraint(Sketcher.Constraint("Equal", 18, 20))
sketch3.addConstraint(Sketcher.Constraint("Equal", 38, 40))
sketch3.addConstraint(Sketcher.Constraint("Equal", 58, 60))
sketch3.addConstraint(Sketcher.Constraint("DistanceX", 1, 1, 1, 2, 5.0))
sketch3.addConstraint(Sketcher.Constraint("DistanceY", -1, 1, 0, 2, 9.0))
sketch3.addConstraint(Sketcher.Constraint("DistanceY", -1, 1, 20, 2, 19.0))
sketch3.addConstraint(Sketcher.Constraint("DistanceY", -1, 1, 40, 2, 29.0))
sketch3.addConstraint(Sketcher.Constraint("DistanceY", -1, 1, 60, 2, 39.0))
sketch3.addConstraint(Sketcher.Constraint("DistanceX", -1, 1, 0, 2, 12.5))
sketch3.addConstraint(Sketcher.Constraint("DistanceX", -1, 1, 4, 2, 2.5))
sketch3.addConstraint(Sketcher.Constraint("DistanceX", -1, 1, 8, 2, 22.5))
sketch3.addConstraint(Sketcher.Constraint("DistanceX", -1, 1, 12, 2, 32.5))
sketch3.addConstraint(Sketcher.Constraint("DistanceX", -1, 1, 16, 2, 42.5))
pocket1 = doc.addObject("PartDesign::Pocket", "Pocket")
body.addObject(pocket1)
pocket1.Profile = sketch3
pocket1.Length = 46

doc.recompute()
